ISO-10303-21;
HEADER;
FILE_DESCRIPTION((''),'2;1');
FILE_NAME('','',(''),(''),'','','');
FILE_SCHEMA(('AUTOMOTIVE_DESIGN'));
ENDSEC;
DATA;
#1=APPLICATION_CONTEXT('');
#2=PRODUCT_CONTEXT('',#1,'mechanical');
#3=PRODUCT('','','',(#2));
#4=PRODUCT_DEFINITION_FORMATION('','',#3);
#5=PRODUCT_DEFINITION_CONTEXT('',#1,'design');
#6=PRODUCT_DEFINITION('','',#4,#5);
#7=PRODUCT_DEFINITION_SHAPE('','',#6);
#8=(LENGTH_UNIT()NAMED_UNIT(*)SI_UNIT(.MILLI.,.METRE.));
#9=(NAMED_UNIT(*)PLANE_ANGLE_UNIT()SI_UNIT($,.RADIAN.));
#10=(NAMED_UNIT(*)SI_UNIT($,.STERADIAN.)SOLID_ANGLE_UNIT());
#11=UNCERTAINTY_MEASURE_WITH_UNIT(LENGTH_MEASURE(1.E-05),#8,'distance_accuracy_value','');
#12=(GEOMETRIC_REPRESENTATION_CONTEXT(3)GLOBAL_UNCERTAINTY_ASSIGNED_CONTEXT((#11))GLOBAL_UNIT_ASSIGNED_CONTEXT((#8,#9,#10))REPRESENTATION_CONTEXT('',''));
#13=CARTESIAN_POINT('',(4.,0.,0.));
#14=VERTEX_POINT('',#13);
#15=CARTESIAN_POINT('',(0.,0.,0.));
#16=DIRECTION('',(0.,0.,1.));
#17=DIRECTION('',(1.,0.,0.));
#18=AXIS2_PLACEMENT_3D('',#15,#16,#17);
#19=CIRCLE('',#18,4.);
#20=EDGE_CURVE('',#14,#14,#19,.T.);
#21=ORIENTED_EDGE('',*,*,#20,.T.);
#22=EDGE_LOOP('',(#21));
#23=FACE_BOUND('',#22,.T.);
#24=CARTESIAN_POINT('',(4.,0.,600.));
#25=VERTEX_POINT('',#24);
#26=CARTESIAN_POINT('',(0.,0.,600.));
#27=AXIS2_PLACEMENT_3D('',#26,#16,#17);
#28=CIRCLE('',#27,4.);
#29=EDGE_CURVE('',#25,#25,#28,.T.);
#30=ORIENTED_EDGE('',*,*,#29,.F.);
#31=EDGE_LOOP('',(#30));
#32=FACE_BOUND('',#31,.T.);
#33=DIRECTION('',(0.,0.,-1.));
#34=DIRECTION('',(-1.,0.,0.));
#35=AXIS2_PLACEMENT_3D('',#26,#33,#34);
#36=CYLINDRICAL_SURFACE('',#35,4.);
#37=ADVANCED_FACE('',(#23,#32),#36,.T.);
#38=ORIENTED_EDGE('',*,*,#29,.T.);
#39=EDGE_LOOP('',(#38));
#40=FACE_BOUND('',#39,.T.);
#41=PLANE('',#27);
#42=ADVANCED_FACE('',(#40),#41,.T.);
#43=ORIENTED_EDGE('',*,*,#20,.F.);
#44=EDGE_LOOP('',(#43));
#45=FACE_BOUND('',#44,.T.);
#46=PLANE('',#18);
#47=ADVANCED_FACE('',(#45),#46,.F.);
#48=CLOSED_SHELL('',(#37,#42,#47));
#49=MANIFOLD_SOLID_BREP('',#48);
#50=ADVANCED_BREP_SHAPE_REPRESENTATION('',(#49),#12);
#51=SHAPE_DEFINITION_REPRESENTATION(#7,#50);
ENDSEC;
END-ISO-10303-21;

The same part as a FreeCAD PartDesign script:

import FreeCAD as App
import Part
import Sketcher
from FreeCAD import Vector

doc = App.newDocument("Part")
params = doc.addObject("Spreadsheet::Sheet", "Params")
for row, (alias, value) in enumerate([
    ("sketch1_diameter", "8 mm"),
    ("pad1_length", "600 mm"),
], start=1):
    params.set(f"A{row}", alias)
    params.set(f"B{row}", "=" + value)
    params.setAlias(f"B{row}", alias)

body = doc.addObject("PartDesign::Body", "Body")

# Sketch on XY plane
sketch1 = doc.addObject("Sketcher::SketchObject", "Sketch")
body.addObject(sketch1)
sketch1.AttachmentSupport = (doc.XY_Plane, [""])
sketch1.MapMode = "FlatFace"
sketch1.addGeometry(Part.Circle(Vector(0, 0, 0), Vector(0, 0, 1), 4), False)
sketch1.addConstraint(Sketcher.Constraint("Coincident", 0, 3, -1, 1))
sketch1.addConstraint(Sketcher.Constraint("Diameter", 0, 8.0))
sketch1.setExpression("Constraints[1]", "Params.sketch1_diameter")
pad1 = doc.addObject("PartDesign::Pad", "Pad")
body.addObject(pad1)
pad1.Profile = sketch1
pad1.setExpression("Length", "Params.pad1_length")

doc.recompute()
